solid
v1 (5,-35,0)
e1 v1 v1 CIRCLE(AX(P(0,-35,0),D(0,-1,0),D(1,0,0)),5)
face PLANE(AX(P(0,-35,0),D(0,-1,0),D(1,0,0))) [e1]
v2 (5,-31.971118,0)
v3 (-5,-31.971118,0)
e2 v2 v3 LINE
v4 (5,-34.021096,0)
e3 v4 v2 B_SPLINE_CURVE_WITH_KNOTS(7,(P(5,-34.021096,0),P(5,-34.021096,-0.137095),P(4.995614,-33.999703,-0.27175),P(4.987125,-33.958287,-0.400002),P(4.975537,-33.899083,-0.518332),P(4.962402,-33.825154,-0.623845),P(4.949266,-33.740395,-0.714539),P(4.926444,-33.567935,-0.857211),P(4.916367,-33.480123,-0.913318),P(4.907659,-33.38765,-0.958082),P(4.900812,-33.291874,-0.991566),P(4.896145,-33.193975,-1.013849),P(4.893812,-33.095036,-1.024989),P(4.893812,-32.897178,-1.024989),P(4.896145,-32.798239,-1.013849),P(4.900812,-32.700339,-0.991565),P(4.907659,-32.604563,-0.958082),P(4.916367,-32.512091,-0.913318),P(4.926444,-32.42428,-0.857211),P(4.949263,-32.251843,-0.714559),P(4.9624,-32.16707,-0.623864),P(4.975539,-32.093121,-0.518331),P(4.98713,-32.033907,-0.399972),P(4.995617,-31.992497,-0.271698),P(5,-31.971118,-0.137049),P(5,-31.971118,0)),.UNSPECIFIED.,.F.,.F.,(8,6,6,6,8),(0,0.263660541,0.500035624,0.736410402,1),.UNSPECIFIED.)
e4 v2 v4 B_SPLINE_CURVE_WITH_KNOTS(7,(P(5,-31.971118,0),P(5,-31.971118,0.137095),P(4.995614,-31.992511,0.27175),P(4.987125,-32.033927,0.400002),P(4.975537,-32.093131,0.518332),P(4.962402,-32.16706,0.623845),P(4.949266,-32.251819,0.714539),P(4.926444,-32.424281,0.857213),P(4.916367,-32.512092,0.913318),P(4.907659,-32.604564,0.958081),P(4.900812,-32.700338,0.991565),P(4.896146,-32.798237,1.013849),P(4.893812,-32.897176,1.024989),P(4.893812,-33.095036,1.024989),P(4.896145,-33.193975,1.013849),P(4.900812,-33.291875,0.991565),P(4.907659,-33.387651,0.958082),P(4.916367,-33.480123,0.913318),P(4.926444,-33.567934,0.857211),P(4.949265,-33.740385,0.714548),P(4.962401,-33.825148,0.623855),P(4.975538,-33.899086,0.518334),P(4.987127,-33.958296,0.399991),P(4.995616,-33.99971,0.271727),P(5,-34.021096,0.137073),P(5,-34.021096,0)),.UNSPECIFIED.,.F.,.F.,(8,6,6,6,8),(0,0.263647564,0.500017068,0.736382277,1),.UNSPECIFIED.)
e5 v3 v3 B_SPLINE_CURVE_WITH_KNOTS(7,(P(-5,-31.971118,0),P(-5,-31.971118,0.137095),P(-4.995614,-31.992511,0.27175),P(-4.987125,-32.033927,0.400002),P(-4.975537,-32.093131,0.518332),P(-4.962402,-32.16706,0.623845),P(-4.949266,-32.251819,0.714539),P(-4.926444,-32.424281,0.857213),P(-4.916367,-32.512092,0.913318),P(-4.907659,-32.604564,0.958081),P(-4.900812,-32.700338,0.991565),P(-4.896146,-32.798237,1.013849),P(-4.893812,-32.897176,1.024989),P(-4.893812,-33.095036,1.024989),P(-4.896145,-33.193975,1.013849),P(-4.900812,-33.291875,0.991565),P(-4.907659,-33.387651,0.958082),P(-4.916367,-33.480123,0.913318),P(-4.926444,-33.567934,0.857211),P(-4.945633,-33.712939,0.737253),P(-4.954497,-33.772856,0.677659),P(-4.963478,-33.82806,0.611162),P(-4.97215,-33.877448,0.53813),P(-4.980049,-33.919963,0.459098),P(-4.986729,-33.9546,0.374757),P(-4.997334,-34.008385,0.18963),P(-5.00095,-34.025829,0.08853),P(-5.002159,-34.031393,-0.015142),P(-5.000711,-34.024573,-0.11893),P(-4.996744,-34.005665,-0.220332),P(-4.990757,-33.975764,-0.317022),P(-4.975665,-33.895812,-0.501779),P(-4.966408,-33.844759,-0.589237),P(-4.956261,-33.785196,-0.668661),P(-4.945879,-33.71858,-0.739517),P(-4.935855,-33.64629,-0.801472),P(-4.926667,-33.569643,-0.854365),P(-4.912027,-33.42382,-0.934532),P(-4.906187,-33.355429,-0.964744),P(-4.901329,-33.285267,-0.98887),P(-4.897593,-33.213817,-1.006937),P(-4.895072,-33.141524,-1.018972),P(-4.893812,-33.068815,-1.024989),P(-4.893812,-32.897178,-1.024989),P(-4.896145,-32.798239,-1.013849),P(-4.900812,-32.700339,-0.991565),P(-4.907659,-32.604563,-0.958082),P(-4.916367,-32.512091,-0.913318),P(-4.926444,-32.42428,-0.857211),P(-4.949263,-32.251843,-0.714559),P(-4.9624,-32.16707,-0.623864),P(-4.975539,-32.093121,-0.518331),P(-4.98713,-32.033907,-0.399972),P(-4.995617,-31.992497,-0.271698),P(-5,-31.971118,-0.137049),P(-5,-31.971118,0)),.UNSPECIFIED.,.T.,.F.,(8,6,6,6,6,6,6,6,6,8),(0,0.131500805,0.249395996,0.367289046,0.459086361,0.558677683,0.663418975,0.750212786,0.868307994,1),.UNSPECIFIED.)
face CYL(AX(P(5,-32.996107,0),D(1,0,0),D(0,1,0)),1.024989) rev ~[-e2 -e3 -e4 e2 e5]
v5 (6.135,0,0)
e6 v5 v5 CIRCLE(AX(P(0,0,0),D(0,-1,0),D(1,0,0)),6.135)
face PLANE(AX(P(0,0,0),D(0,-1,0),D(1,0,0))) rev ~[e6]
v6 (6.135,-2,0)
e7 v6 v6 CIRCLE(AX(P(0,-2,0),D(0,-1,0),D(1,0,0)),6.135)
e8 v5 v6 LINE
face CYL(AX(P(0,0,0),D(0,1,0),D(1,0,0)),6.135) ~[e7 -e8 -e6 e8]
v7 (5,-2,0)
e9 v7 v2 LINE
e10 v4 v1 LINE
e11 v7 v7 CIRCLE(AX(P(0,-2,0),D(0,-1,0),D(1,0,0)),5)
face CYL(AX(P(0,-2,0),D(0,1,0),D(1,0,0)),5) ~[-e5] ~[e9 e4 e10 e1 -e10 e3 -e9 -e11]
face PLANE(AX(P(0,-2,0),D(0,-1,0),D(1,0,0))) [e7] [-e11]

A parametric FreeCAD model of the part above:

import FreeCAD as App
import Part
import Sketcher
from FreeCAD import Vector

doc = App.newDocument("Part")
params = doc.addObject("Spreadsheet::Sheet", "Params")
for row, (alias, value) in enumerate([
    ("sketch1_diameter", "12.27 mm"),
    ("pad1_length", "2 mm"),
    ("sketch2_diameter", "10 mm"),
    ("pad2_length", "33 mm"),
], start=1):
    params.set(f"A{row}", alias)
    params.set(f"B{row}", "=" + value)
    params.setAlias(f"B{row}", alias)

body = doc.addObject("PartDesign::Body", "Body")

sketch1 = doc.addObject("Sketcher::SketchObject", "Sketch")
body.addObject(sketch1)
sketch1.AttachmentSupport = (doc.XZ_Plane, [""])
sketch1.MapMode = "FlatFace"
sketch1.addGeometry(Part.Circle(Vector(0, 0, 0), Vector(0, 0, 1), 6), False)
sketch1.addConstraint([
    Sketcher.Constraint("Coincident", 0, 3, -1, 1),
    Sketcher.Constraint("Diameter", 0, 12.27),
])
sketch1.setExpression("Constraints[1]", "Params.sketch1_diameter")
pad1 = doc.addObject("PartDesign::Pad", "Pad")
body.addObject(pad1)
pad1.Profile = sketch1
pad1.setExpression("Length", "Params.pad1_length")

sketch2 = doc.addObject("Sketcher::SketchObject", "Sketch001")
body.addObject(sketch2)
sketch2.AttachmentSupport = (doc.XZ_Plane, [""])
sketch2.MapMode = "FlatFace"
sketch2.AttachmentOffset = App.Placement(Vector(0, 0, 2), App.Rotation())
sketch2.addGeometry(Part.Circle(Vector(0, 0, 0), Vector(0, 0, 1), 5), False)
sketch2.addConstraint([
    Sketcher.Constraint("Coincident", 0, 3, -1, 1),
    Sketcher.Constraint("Diameter", 0, 10.0),
])
sketch2.setExpression("Constraints[1]", "Params.sketch2_diameter")
pad2 = doc.addObject("PartDesign::Pad", "Pad001")
body.addObject(pad2)
pad2.Profile = sketch2
pad2.setExpression("Length", "Params.pad2_length")

sketch3 = doc.addObject("Sketcher::SketchObject", "Sketch002")
body.addObject(sketch3)
sketch3.AttachmentSupport = (doc.YZ_Plane, [""])
sketch3.MapMode = "FlatFace"
sketch3.AttachmentOffset = App.Placement(Vector(0, 0, 5), App.Rotation())
sketch3.addGeometry(Part.Circle(Vector(-33, 0, 0), Vector(0, 0, 1), 1), False)
sketch3.addConstraint([
    Sketcher.Constraint("PointOnObject", 0, 3, -1),
    Sketcher.Constraint("Diameter", 0, 2.049978),
    Sketcher.Constraint("DistanceX", 0, 3, -1, 1, 32.996107),
])
pocket1 = doc.addObject("PartDesign::Pocket", "Pocket")
body.addObject(pocket1)
pocket1.Profile = sketch3
pocket1.Type = "ThroughAll"

doc.recompute()
